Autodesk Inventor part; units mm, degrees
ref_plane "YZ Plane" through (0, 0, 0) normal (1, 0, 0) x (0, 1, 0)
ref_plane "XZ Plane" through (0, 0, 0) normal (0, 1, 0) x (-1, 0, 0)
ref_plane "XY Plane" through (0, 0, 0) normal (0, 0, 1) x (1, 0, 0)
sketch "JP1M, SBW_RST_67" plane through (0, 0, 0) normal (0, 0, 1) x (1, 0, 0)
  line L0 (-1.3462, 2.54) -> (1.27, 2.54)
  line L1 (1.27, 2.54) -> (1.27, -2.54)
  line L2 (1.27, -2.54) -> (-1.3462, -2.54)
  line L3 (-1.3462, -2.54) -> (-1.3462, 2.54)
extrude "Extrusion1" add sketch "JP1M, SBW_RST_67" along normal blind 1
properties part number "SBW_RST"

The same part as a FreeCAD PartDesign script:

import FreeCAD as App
import Part
import Sketcher
Q = App.Units.Quantity


def add_polygon(sketch, points):
    """Adds a closed chain of lines whose ends are joined by coincident constraints."""
    first, n = sketch.GeometryCount, len(points)
    for a, b in zip(points, points[1:] + points[:1]):
        sketch.addGeometry(Part.LineSegment(App.Vector(*a, 0), App.Vector(*b, 0)), False)
    for i in range(n):
        sketch.addConstraint(Sketcher.Constraint("Coincident", first + i, 2, first + (i + 1) % n, 1))

doc = App.newDocument("Part")
params = doc.addObject("Spreadsheet::Sheet", "Params")
for row, (alias, value) in enumerate([
    ("sketch1_height", "0.2 in"),
    ("sketch1_width", "0.103 in"),
    ("pad1_length", "1 mm"),
], start=1):
    params.set(f"A{row}", alias)
    params.set(f"B{row}", "=" + value)
    params.setAlias(f"B{row}", alias)

body = doc.addObject("PartDesign::Body", "Body")

sketch1 = doc.addObject("Sketcher::SketchObject", "Sketch")
body.addObject(sketch1)
sketch1.AttachmentSupport = (doc.XY_Plane, [""])
sketch1.MapMode = "FlatFace"
add_polygon(sketch1, [(1.3, 2.5), (-1.3, 2.5), (-1.3, -2.5), (1.3, -2.5)])
sketch1.addConstraint([
    Sketcher.Constraint("Horizontal", 0),
    Sketcher.Constraint("Vertical", 1),
    Sketcher.Constraint("Horizontal", 2),
    Sketcher.Constraint("Vertical", 3),
    Sketcher.Constraint("DistanceY", 1, 2, 1, 1, Q("0.2 in")),
    Sketcher.Constraint("DistanceY", -1, 1, 0, 2, Q("0.1 in")),
    Sketcher.Constraint("DistanceX", 0, 2, 0, 1, Q("0.103 in")),
    Sketcher.Constraint("DistanceX", -1, 1, 2, 2, Q("0.05 in")),
])
sketch1.setExpression("Constraints[8]", "Params.sketch1_height")
sketch1.setExpression("Constraints[10]", "Params.sketch1_width")
pad1 = doc.addObject("PartDesign::Pad", "Pad")
body.addObject(pad1)
pad1.Profile = sketch1
pad1.setExpression("Length", "Params.pad1_length")

doc.recompute()
